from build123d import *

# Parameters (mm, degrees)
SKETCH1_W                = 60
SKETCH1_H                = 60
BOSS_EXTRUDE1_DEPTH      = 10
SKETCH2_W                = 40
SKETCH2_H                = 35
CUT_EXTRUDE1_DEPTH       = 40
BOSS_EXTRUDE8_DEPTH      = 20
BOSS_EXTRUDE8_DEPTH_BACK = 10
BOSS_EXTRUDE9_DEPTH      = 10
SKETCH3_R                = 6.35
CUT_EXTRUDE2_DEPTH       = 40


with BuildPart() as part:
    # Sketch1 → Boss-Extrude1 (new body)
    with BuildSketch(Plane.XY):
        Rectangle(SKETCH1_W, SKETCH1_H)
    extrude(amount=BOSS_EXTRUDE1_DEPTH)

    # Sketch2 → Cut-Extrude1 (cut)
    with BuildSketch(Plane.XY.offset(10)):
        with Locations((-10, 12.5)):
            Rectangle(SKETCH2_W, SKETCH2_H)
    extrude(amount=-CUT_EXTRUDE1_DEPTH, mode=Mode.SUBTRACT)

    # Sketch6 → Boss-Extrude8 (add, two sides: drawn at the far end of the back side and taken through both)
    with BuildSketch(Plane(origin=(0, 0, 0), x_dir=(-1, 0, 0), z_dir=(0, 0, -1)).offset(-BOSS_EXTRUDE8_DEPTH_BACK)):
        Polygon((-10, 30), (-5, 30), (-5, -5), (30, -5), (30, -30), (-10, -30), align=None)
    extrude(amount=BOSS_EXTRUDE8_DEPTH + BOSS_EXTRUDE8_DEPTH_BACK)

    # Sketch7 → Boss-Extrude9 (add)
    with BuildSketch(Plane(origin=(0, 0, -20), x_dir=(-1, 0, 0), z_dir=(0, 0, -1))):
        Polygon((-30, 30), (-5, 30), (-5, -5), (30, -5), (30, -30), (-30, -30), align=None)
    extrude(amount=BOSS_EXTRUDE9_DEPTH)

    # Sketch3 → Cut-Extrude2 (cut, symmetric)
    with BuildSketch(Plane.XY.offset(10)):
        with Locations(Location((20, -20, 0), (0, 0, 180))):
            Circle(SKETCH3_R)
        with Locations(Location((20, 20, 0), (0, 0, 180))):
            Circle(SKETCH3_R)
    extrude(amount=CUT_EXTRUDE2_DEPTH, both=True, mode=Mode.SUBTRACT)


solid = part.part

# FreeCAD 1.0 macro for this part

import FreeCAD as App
import Part
import Sketcher
Q = App.Units.Quantity

doc = App.newDocument("Part")
params = doc.addObject("Spreadsheet::Sheet", "Params")
for row, (alias, value) in enumerate([
    ("sketch1_width", "60 mm"),
    ("pad1_length", "10 mm"),
    ("sketch2_width", "40 mm"),
    ("sketch2_height", "35 mm"),
    ("pocket1_length", "40 mm"),
    ("sketch3_width", "5 mm"),
    ("sketch3_width2", "40 mm"),
    ("sketch3_height", "60 mm"),
    ("pad2_length", "20 mm"),
    ("pad2_length2", "10 mm"),
    ("sketch4_width", "25 mm"),
    ("sketch4_width2", "60 mm"),
    ("pad3_length", "10 mm"),
    ("sketch5_diameter", "12.7 mm"),
    ("pocket2_length", "80 mm"),
], start=1):
    params.set(f"A{row}", alias)
    params.set(f"B{row}", "=" + value)
    params.setAlias(f"B{row}", alias)

body = doc.addObject("PartDesign::Body", "Body")

# Sketch on XY plane
sketch1 = body.newObject("Sketcher::SketchObject", "Sketch")
sketch1.AttachmentSupport = (doc.getObject("XY_Plane"), [""])
sketch1.MapMode = "FlatFace"
sketch1.addGeometry(Part.LineSegment(App.Vector(-30, 30, 0), App.Vector(-30, -30, 0)), False)
sketch1.addGeometry(Part.LineSegment(App.Vector(-30, -30, 0), App.Vector(30, -30, 0)), False)
sketch1.addGeometry(Part.LineSegment(App.Vector(30, -30, 0), App.Vector(30, 30, 0)), False)
sketch1.addGeometry(Part.LineSegment(App.Vector(30, 30, 0), App.Vector(-30, 30, 0)), False)
sketch1.addConstraint(Sketcher.Constraint("Coincident", 0, 2, 1, 1))
sketch1.addConstraint(Sketcher.Constraint("Coincident", 1, 2, 2, 1))
sketch1.addConstraint(Sketcher.Constraint("Coincident", 2, 2, 3, 1))
sketch1.addConstraint(Sketcher.Constraint("Coincident", 3, 2, 0, 1))
sketch1.addConstraint(Sketcher.Constraint("Vertical", 0))
sketch1.addConstraint(Sketcher.Constraint("Horizontal", 1))
sketch1.addConstraint(Sketcher.Constraint("Vertical", 2))
sketch1.addConstraint(Sketcher.Constraint("Horizontal", 3))
sketch1.addConstraint(Sketcher.Constraint("Symmetric", 0, 2, 2, 2, -1, 1))
sketch1.addConstraint(Sketcher.Constraint("Equal", 3, 0))
sketch1.addConstraint(Sketcher.Constraint("DistanceX", 1, 1, 1, 2, Q("60 mm")))
sketch1.setExpression("Constraints[10]", "Params.sketch1_width")
pad1 = body.newObject("PartDesign::Pad", "Pad")
pad1.Profile = sketch1
pad1.setExpression("Length", "Params.pad1_length")

# Sketch on XY plane
sketch2 = body.newObject("Sketcher::SketchObject", "Sketch001")
sketch2.AttachmentSupport = (doc.getObject("XY_Plane"), [""])
sketch2.MapMode = "FlatFace"
sketch2.AttachmentOffset = App.Placement(App.Vector(0, 0, 10), App.Rotation())
sketch2.addGeometry(Part.LineSegment(App.Vector(-30, 30, 0), App.Vector(-30, -5, 0)), False)
sketch2.addGeometry(Part.LineSegment(App.Vector(-30, -5, 0), App.Vector(10, -5, 0)), False)
sketch2.addGeometry(Part.LineSegment(App.Vector(10, -5, 0), App.Vector(10, 30, 0)), False)
sketch2.addGeometry(Part.LineSegment(App.Vector(10, 30, 0), App.Vector(-30, 30, 0)), False)
sketch2.addConstraint(Sketcher.Constraint("Coincident", 0, 2, 1, 1))
sketch2.addConstraint(Sketcher.Constraint("Coincident", 1, 2, 2, 1))
sketch2.addConstraint(Sketcher.Constraint("Coincident", 2, 2, 3, 1))
sketch2.addConstraint(Sketcher.Constraint("Coincident", 3, 2, 0, 1))
sketch2.addConstraint(Sketcher.Constraint("Vertical", 0))
sketch2.addConstraint(Sketcher.Constraint("Horizontal", 1))
sketch2.addConstraint(Sketcher.Constraint("Vertical", 2))
sketch2.addConstraint(Sketcher.Constraint("Horizontal", 3))
sketch2.addConstraint(Sketcher.Constraint("DistanceX", 1, 1, 1, 2, Q("40 mm")))
sketch2.addConstraint(Sketcher.Constraint("DistanceY", 0, 2, 0, 1, Q("35 mm")))
sketch2.addConstraint(Sketcher.Constraint("DistanceX", 0, 2, -1, 1, Q("30 mm")))
sketch2.addConstraint(Sketcher.Constraint("DistanceY", 0, 2, -1, 1, Q("5 mm")))
sketch2.setExpression("Constraints[8]", "Params.sketch2_width")
sketch2.setExpression("Constraints[9]", "Params.sketch2_height")
pocket1 = body.newObject("PartDesign::Pocket", "Pocket")
pocket1.Profile = sketch2
pocket1.setExpression("Length", "Params.pocket1_length")

# Sketch on XY plane
sketch3 = body.newObject("Sketcher::SketchObject", "Sketch002")
sketch3.AttachmentSupport = (doc.getObject("XY_Plane"), [""])
sketch3.MapMode = "FlatFace"
sketch3.addGeometry(Part.LineSegment(App.Vector(5, 30, 0), App.Vector(10, 30, 0)), False)
sketch3.addGeometry(Part.LineSegment(App.Vector(10, 30, 0), App.Vector(10, -30, 0)), False)
sketch3.addGeometry(Part.LineSegment(App.Vector(10, -30, 0), App.Vector(-30, -30, 0)), False)
sketch3.addGeometry(Part.LineSegment(App.Vector(-30, -30, 0), App.Vector(-30, -5, 0)), False)
sketch3.addGeometry(Part.LineSegment(App.Vector(-30, -5, 0), App.Vector(5, -5, 0)), False)
sketch3.addGeometry(Part.LineSegment(App.Vector(5, -5, 0), App.Vector(5, 30, 0)), False)
sketch3.addConstraint(Sketcher.Constraint("Coincident", 0, 2, 1, 1))
sketch3.addConstraint(Sketcher.Constraint("Coincident", 1, 2, 2, 1))
sketch3.addConstraint(Sketcher.Constraint("Coincident", 2, 2, 3, 1))
sketch3.addConstraint(Sketcher.Constraint("Coincident", 3, 2, 4, 1))
sketch3.addConstraint(Sketcher.Constraint("Coincident", 4, 2, 5, 1))
sketch3.addConstraint(Sketcher.Constraint("Coincident", 5, 2, 0, 1))
sketch3.addConstraint(Sketcher.Constraint("Horizontal", 0))
sketch3.addConstraint(Sketcher.Constraint("Vertical", 1))
sketch3.addConstraint(Sketcher.Constraint("Horizontal", 2))
sketch3.addConstraint(Sketcher.Constraint("Vertical", 3))
sketch3.addConstraint(Sketcher.Constraint("Horizontal", 4))
sketch3.addConstraint(Sketcher.Constraint("Vertical", 5))
sketch3.addConstraint(Sketcher.Constraint("Equal", 4, 5))
sketch3.addConstraint(Sketcher.Constraint("DistanceX", 0, 1, 0, 2, Q("5 mm")))
sketch3.addConstraint(Sketcher.Constraint("DistanceX", 2, 2, 2, 1, Q("40 mm")))
sketch3.addConstraint(Sketcher.Constraint("DistanceY", 1, 2, 1, 1, Q("60 mm")))
sketch3.addConstraint(Sketcher.Constraint("DistanceX", -1, 1, 0, 2, Q("10 mm")))
sketch3.addConstraint(Sketcher.Constraint("DistanceY", -1, 1, 0, 2, Q("30 mm")))
sketch3.setExpression("Constraints[13]", "Params.sketch3_width")
sketch3.setExpression("Constraints[14]", "Params.sketch3_width2")
sketch3.setExpression("Constraints[15]", "Params.sketch3_height")
pad2 = body.newObject("PartDesign::Pad", "Pad001")
pad2.Profile = sketch3
pad2.Type = "TwoLengths"
pad2.setExpression("Length", "Params.pad2_length")
pad2.setExpression("Length2", "Params.pad2_length2")
pad2.Reversed = True

# Sketch on XY plane
sketch4 = body.newObject("Sketcher::SketchObject", "Sketch003")
sketch4.AttachmentSupport = (doc.getObject("XY_Plane"), [""])
sketch4.MapMode = "FlatFace"
sketch4.AttachmentOffset = App.Placement(App.Vector(0, 0, -20), App.Rotation())
sketch4.addGeometry(Part.LineSegment(App.Vector(5, 30, 0), App.Vector(30, 30, 0)), False)
sketch4.addGeometry(Part.LineSegment(App.Vector(30, 30, 0), App.Vector(30, -30, 0)), False)
sketch4.addGeometry(Part.LineSegment(App.Vector(30, -30, 0), App.Vector(-30, -30, 0)), False)
sketch4.addGeometry(Part.LineSegment(App.Vector(-30, -30, 0), App.Vector(-30, -5, 0)), False)
sketch4.addGeometry(Part.LineSegment(App.Vector(-30, -5, 0), App.Vector(5, -5, 0)), False)
sketch4.addGeometry(Part.LineSegment(App.Vector(5, -5, 0), App.Vector(5, 30, 0)), False)
sketch4.addConstraint(Sketcher.Constraint("Coincident", 0, 2, 1, 1))
sketch4.addConstraint(Sketcher.Constraint("Coincident", 1, 2, 2, 1))
sketch4.addConstraint(Sketcher.Constraint("Coincident", 2, 2, 3, 1))
sketch4.addConstraint(Sketcher.Constraint("Coincident", 3, 2, 4, 1))
sketch4.addConstraint(Sketcher.Constraint("Coincident", 4, 2, 5, 1))
sketch4.addConstraint(Sketcher.Constraint("Coincident", 5, 2, 0, 1))
sketch4.addConstraint(Sketcher.Constraint("Horizontal", 0))
sketch4.addConstraint(Sketcher.Constraint("Vertical", 1))
sketch4.addConstraint(Sketcher.Constraint("Horizontal", 2))
sketch4.addConstraint(Sketcher.Constraint("Vertical", 3))
sketch4.addConstraint(Sketcher.Constraint("Horizontal", 4))
sketch4.addConstraint(Sketcher.Constraint("Vertical", 5))
sketch4.addConstraint(Sketcher.Constraint("Symmetric", 0, 2, 2, 2, -1, 1))
sketch4.addConstraint(Sketcher.Constraint("Equal", 2, 1))
sketch4.addConstraint(Sketcher.Constraint("Equal", 0, 3))
sketch4.addConstraint(Sketcher.Constraint("DistanceX", 0, 1, 0, 2, Q("25 mm")))
sketch4.addConstraint(Sketcher.Constraint("DistanceX", 2, 2, 2, 1, Q("60 mm")))
sketch4.setExpression("Constraints[15]", "Params.sketch4_width")
sketch4.setExpression("Constraints[16]", "Params.sketch4_width2")
pad3 = body.newObject("PartDesign::Pad", "Pad002")
pad3.Profile = sketch4
pad3.setExpression("Length", "Params.pad3_length")
pad3.Reversed = True

# Sketch on XY plane
sketch5 = body.newObject("Sketcher::SketchObject", "Sketch004")
sketch5.AttachmentSupport = (doc.getObject("XY_Plane"), [""])
sketch5.MapMode = "FlatFace"
sketch5.AttachmentOffset = App.Placement(App.Vector(0, 0, 10), App.Rotation())
sketch5.addGeometry(Part.Circle(App.Vector(20, -20, 0), App.Vector(0, 0, 1), 6), False)
sketch5.addGeometry(Part.Circle(App.Vector(20, 20, 0), App.Vector(0, 0, 1), 6), False)
sketch5.addConstraint(Sketcher.Constraint("Equal", 0, 1))
sketch5.addConstraint(Sketcher.Constraint("Symmetric", 0, 3, 1, 3, -1))
sketch5.addConstraint(Sketcher.Constraint("Diameter", 0, Q("12.7 mm")))
sketch5.addConstraint(Sketcher.Constraint("DistanceX", -1, 1, 0, 3, Q("20 mm")))
sketch5.addConstraint(Sketcher.Constraint("DistanceY", 0, 3, -1, 1, Q("20 mm")))
sketch5.setExpression("Constraints[2]", "Params.sketch5_diameter")
pocket2 = body.newObject("PartDesign::Pocket", "Pocket001")
pocket2.Profile = sketch5
pocket2.setExpression("Length", "Params.pocket2_length")
pocket2.Midplane = True

doc.recompute()
